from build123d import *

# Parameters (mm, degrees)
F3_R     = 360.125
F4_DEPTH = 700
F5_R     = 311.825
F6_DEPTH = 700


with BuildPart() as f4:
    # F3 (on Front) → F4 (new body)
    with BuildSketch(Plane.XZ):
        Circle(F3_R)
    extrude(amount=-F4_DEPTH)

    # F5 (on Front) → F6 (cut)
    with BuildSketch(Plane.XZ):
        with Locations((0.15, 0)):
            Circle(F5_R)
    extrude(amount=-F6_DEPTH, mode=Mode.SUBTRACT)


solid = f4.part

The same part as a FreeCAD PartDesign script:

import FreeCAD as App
import Part
import Sketcher

V = App.Vector
Q = App.Units.Quantity

doc = App.newDocument("Part")
body = doc.addObject("PartDesign::Body", "Body")

sketch1 = body.newObject("Sketcher::SketchObject", "Sketch")
sketch1.AttachmentSupport = (doc.getObject("XZ_Plane"), [""])
sketch1.MapMode = "FlatFace"
sketch1.addGeometry(Part.Circle(V(0, 0, 0), V(0, 0, 1), 360), False)
sketch1.addConstraint([
    Sketcher.Constraint("Coincident", 0, 3, -1, 1),
    Sketcher.Constraint("Diameter", 0, Q("720.25 mm")),
])
pad1 = body.newObject("PartDesign::Pad", "Pad")
pad1.Profile = sketch1
pad1.Length = 700
pad1.Reversed = True

sketch2 = body.newObject("Sketcher::SketchObject", "Sketch001")
sketch2.AttachmentSupport = (doc.getObject("XZ_Plane"), [""])
sketch2.MapMode = "FlatFace"
sketch2.addGeometry(Part.Circle(V(0, 0, 0), V(0, 0, 1), 312), False)
sketch2.addConstraint([
    Sketcher.Constraint("PointOnObject", 0, 3, -1),
    Sketcher.Constraint("Diameter", 0, Q("623.65 mm")),
    Sketcher.Constraint("DistanceX", -1, 1, 0, 3, Q("0.15 mm")),
])
pocket1 = body.newObject("PartDesign::Pocket", "Pocket")
pocket1.Profile = sketch2
pocket1.Length = 700

doc.recompute()
